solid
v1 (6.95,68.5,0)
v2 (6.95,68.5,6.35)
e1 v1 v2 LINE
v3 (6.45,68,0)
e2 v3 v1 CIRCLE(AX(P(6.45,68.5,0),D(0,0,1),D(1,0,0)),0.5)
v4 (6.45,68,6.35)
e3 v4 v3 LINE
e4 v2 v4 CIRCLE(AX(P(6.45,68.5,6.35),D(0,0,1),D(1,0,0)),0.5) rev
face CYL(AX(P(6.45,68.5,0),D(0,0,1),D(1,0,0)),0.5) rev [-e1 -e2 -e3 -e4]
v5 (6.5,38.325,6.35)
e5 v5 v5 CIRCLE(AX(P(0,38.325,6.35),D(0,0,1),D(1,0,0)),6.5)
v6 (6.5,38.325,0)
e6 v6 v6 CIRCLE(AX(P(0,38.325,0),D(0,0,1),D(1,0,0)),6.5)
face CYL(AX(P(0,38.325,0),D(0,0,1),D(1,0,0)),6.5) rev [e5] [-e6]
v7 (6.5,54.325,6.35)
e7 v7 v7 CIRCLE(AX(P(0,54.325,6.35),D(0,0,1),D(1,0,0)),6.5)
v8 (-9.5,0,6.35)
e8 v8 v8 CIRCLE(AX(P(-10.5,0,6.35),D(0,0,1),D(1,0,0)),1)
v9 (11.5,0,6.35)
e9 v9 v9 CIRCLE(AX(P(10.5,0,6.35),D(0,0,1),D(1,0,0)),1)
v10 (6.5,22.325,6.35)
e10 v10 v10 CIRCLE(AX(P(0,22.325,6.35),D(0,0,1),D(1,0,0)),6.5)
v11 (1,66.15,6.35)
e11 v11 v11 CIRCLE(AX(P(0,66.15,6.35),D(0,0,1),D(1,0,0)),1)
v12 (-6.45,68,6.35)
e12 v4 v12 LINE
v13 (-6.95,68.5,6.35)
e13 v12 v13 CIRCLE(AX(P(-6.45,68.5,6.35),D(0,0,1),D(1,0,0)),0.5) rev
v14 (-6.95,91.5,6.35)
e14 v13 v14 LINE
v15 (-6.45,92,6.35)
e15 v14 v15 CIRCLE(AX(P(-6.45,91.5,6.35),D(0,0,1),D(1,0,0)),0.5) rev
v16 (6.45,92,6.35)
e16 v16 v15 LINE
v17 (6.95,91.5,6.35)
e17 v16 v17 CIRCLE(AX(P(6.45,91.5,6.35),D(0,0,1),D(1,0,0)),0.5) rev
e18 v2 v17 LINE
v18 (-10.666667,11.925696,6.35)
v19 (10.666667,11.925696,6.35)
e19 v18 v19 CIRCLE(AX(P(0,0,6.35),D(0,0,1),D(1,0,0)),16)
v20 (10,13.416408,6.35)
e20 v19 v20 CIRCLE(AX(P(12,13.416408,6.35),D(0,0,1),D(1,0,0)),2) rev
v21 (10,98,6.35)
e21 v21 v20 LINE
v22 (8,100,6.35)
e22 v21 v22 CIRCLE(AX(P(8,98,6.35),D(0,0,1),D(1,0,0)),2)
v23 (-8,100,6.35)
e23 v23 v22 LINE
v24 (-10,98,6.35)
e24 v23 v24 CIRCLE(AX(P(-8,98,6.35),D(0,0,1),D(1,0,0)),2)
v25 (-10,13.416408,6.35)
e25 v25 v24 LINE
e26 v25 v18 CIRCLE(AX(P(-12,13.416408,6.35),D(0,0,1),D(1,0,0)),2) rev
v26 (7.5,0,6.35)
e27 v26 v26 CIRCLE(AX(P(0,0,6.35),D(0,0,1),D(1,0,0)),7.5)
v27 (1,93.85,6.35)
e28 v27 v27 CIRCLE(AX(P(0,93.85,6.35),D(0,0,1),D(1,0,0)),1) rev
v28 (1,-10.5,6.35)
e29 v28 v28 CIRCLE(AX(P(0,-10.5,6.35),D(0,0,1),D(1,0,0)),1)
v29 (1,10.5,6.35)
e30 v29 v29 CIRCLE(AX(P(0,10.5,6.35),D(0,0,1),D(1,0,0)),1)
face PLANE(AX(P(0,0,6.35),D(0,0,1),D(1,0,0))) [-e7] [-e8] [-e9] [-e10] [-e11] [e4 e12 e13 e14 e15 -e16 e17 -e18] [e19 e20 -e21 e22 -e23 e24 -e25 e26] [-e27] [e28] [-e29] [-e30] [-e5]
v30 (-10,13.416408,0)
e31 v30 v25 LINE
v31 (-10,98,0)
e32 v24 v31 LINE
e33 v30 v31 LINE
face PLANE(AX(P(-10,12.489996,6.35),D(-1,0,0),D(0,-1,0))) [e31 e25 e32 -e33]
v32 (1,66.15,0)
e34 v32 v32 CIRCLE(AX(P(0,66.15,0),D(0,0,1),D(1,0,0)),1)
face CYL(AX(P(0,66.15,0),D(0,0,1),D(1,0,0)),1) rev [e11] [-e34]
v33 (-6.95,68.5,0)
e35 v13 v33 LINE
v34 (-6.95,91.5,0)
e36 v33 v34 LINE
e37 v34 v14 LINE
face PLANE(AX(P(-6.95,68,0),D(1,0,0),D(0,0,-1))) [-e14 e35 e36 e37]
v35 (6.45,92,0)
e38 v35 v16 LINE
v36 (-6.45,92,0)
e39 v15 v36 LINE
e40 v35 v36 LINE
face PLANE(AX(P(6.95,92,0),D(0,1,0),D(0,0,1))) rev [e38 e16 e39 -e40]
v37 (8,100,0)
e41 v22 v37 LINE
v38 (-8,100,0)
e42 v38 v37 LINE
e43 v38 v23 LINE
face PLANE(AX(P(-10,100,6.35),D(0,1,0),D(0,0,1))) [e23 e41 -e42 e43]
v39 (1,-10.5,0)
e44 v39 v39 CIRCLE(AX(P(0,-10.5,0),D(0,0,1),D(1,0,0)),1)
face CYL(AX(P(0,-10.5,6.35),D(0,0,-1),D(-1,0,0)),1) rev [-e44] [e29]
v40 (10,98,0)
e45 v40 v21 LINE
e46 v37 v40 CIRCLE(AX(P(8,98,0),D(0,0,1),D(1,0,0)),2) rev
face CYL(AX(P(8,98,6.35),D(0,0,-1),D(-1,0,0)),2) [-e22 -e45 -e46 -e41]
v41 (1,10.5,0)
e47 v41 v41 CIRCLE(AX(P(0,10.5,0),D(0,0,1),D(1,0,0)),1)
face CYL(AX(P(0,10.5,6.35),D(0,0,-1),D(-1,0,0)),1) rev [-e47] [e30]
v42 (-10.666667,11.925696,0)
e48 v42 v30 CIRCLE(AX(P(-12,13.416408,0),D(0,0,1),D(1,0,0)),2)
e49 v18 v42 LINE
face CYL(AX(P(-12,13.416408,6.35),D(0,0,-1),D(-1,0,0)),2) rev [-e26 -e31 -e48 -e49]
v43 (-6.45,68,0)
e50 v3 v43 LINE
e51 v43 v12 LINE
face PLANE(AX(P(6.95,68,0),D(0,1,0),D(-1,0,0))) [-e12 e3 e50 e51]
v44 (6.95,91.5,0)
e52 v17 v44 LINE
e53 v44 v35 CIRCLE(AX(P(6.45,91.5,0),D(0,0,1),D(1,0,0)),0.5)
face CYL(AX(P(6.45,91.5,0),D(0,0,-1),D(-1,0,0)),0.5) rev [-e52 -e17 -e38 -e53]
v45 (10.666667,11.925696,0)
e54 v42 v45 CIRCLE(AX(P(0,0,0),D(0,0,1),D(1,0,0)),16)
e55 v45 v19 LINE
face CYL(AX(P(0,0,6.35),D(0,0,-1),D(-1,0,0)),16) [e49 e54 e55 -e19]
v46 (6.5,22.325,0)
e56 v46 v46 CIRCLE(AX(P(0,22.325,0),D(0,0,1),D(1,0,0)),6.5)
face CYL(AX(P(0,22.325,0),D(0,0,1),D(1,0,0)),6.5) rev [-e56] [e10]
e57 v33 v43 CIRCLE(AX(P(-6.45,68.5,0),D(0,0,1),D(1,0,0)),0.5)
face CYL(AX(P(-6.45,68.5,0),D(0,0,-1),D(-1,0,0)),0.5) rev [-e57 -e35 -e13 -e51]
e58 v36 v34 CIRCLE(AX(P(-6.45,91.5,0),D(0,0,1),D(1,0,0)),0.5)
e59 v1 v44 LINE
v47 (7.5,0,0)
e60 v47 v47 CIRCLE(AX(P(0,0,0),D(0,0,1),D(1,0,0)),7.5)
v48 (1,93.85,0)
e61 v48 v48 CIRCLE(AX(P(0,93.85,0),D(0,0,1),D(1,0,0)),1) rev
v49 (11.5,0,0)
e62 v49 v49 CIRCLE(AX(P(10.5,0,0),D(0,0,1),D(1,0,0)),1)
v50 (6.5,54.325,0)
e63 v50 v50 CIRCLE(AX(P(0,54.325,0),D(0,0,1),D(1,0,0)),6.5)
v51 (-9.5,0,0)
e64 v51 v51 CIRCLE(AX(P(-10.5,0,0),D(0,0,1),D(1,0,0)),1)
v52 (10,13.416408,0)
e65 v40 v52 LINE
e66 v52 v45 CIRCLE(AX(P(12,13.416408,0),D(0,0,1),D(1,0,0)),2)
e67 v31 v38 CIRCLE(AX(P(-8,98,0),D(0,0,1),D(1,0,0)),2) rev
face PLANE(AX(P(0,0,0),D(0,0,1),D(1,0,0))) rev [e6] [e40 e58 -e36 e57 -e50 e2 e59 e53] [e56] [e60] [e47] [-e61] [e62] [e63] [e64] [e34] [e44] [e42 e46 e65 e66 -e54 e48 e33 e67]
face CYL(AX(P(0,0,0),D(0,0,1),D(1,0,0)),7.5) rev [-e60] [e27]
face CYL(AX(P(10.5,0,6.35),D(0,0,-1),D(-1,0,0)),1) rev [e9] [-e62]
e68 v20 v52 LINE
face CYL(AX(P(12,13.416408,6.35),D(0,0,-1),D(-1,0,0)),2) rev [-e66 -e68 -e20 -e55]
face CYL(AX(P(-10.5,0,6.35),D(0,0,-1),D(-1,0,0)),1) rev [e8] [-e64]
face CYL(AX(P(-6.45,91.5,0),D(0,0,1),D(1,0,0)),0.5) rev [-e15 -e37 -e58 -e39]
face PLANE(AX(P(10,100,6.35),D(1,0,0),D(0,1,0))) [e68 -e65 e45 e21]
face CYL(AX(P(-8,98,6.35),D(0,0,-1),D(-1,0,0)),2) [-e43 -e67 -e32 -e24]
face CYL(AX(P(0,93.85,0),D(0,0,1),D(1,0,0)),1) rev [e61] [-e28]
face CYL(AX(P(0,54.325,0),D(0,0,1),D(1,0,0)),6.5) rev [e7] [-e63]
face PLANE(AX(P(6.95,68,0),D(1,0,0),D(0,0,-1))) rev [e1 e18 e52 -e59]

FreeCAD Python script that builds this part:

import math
import FreeCAD as App
import Part
import Sketcher
from FreeCAD import Vector


def edges_at(feature, points):
    """Names of the edges that pass closest to the given points."""
    edges = feature.Shape.Edges
    near = lambda p: min(range(len(edges)), key=lambda i: edges[i].distToShape(Part.Vertex(*p))[0])
    return sorted({f"Edge{near(p) + 1}" for p in points})

doc = App.newDocument("Part")
params = doc.addObject("Spreadsheet::Sheet", "Params")
for row, (alias, value) in enumerate([
    ("sketch1_diameter", "2 mm"),
    ("sketch1_radius", "16 mm"),
    ("sketch1_width", "20 mm"),
    ("pad1_length", "6.35 mm"),
    ("sketch2_diameter", "2 mm"),
    ("sketch2_height", "24 mm"),
    ("sketch2_width", "13.9 mm"),
    ("fillet_radius", "0.5 mm"),
    ("fillet2_radius", "2 mm"),
    ("sketch3_diameter", "13 mm"),
    ("pocket2_length", "6.35 mm"),
    ("sketch4_diameter", "15 mm"),
], start=1):
    params.set(f"A{row}", alias)
    params.set(f"B{row}", "=" + value)
    params.setAlias(f"B{row}", alias)

body = doc.addObject("PartDesign::Body", "Body")

sketch1 = doc.addObject("Sketcher::SketchObject", "Sketch")
body.addObject(sketch1)
sketch1.AttachmentSupport = (doc.XY_Plane, [""])
sketch1.MapMode = "FlatFace"
sketch1.addGeometry([
    Part.LineSegment(Vector(-10, 100, 0), Vector(-10, 12.5, 0)),
    Part.ArcOfCircle(Part.Circle(Vector(0, 0, 0), Vector(0, 0, 1), 16), math.radians(129), math.radians(411)),
    Part.LineSegment(Vector(10, 12.5, 0), Vector(10, 100, 0)),
    Part.LineSegment(Vector(10, 100, 0), Vector(-10, 100, 0)),
    Part.Circle(Vector(0, -10.5, 0), Vector(0, 0, 1), 1),
    Part.Circle(Vector(10.5, 0, 0), Vector(0, 0, 1), 1),
    Part.Circle(Vector(-10.5, 0, 0), Vector(0, 0, 1), 1),
    Part.Circle(Vector(0, 10.5, 0), Vector(0, 0, 1), 1),
], False)
sketch1.addConstraint([
    Sketcher.Constraint("Coincident", 0, 2, 1, 1),
    Sketcher.Constraint("Coincident", 1, 2, 2, 1),
    Sketcher.Constraint("Coincident", 2, 2, 3, 1),
    Sketcher.Constraint("Coincident", 3, 2, 0, 1),
    Sketcher.Constraint("Vertical", 0),
    Sketcher.Constraint("Vertical", 2),
    Sketcher.Constraint("Horizontal", 3),
    Sketcher.Constraint("Coincident", 1, 3, -1, 1),
    Sketcher.Constraint("Equal", 4, 5),
    Sketcher.Constraint("Equal", 5, 6),
    Sketcher.Constraint("Equal", 6, 7),
    Sketcher.Constraint("Symmetric", 5, 3, 6, 3, -1, 1),
    Sketcher.Constraint("Symmetric", 4, 3, 7, 3, -1, 1),
    Sketcher.Constraint("PointOnObject", 4, 3, -2),
    Sketcher.Constraint("PointOnObject", 5, 3, -1),
    Sketcher.Constraint("Horizontal", 0, 2, 1, 2),
    Sketcher.Constraint("Diameter", 4, 2.0),
    Sketcher.Constraint("Radius", 1, 16.0),
    Sketcher.Constraint("DistanceX", 3, 2, 3, 1, 20.0),
    Sketcher.Constraint("DistanceY", -1, 1, 2, 2, 100.0),
    Sketcher.Constraint("DistanceX", 6, 3, 5, 3, 21.0),
    Sketcher.Constraint("DistanceY", 4, 3, 7, 3, 21.0),
])
sketch1.setExpression("Constraints[16]", "Params.sketch1_diameter")
sketch1.setExpression("Constraints[17]", "Params.sketch1_radius")
sketch1.setExpression("Constraints[18]", "Params.sketch1_width")
pad1 = doc.addObject("PartDesign::Pad", "Pad")
body.addObject(pad1)
pad1.Profile = sketch1
pad1.setExpression("Length", "Params.pad1_length")

sketch2 = doc.addObject("Sketcher::SketchObject", "Sketch001")
body.addObject(sketch2)
sketch2.AttachmentSupport = (doc.XY_Plane, [""])
sketch2.MapMode = "FlatFace"
sketch2.AttachmentOffset = App.Placement(Vector(0, 0, 6.35), App.Rotation())
sketch2.addGeometry([
    Part.Circle(Vector(0, 93.8, 0), Vector(0, 0, 1), 1),
    Part.Circle(Vector(0, 66.2, 0), Vector(0, 0, 1), 1),
    Part.LineSegment(Vector(-7, 92, 0), Vector(-7, 68, 0)),
    Part.LineSegment(Vector(-7, 68, 0), Vector(7, 68, 0)),
    Part.LineSegment(Vector(7, 68, 0), Vector(7, 92, 0)),
    Part.LineSegment(Vector(7, 92, 0), Vector(-7, 92, 0)),
], False)
sketch2.addConstraint([
    Sketcher.Constraint("Coincident", 2, 2, 3, 1),
    Sketcher.Constraint("Coincident", 3, 2, 4, 1),
    Sketcher.Constraint("Coincident", 4, 2, 5, 1),
    Sketcher.Constraint("Coincident", 5, 2, 2, 1),
    Sketcher.Constraint("Vertical", 2),
    Sketcher.Constraint("Horizontal", 3),
    Sketcher.Constraint("Vertical", 4),
    Sketcher.Constraint("Horizontal", 5),
    Sketcher.Constraint("Equal", 0, 1),
    Sketcher.Constraint("PointOnObject", 0, 3, -2),
    Sketcher.Constraint("PointOnObject", 1, 3, -2),
    Sketcher.Constraint("Diameter", 0, 2.0),
    Sketcher.Constraint("DistanceY", 2, 2, 2, 1, 24.0),
    Sketcher.Constraint("DistanceX", 3, 1, 3, 2, 13.9),
    Sketcher.Constraint("DistanceY", -1, 1, 2, 2, 68.0),
    Sketcher.Constraint("DistanceY", 1, 3, 0, 3, 27.7),
    Sketcher.Constraint("DistanceY", -1, 1, 0, 3, 93.85),
    Sketcher.Constraint("DistanceX", 2, 2, -1, 1, 6.95),
])
sketch2.setExpression("Constraints[11]", "Params.sketch2_diameter")
sketch2.setExpression("Constraints[12]", "Params.sketch2_height")
sketch2.setExpression("Constraints[13]", "Params.sketch2_width")
pocket1 = doc.addObject("PartDesign::Pocket", "Pocket")
body.addObject(pocket1)
pocket1.Profile = sketch2
pocket1.Type = "ThroughAll"
doc.recompute()

fillet = doc.addObject("PartDesign::Fillet", "Fillet")
body.addObject(fillet)
fillet.Base = (pocket1, edges_at(pocket1, [
    (6.95, 68, 3.175),
    (-6.95, 68, 3.175),
    (-6.95, 92, 3.175),
    (6.95, 92, 3.175),
]))
fillet.setExpression("Radius", "Params.fillet_radius")
doc.recompute()

fillet2 = doc.addObject("PartDesign::Fillet", "Fillet001")
body.addObject(fillet2)
fillet2.Base = (fillet, edges_at(fillet, [
    (-10, 12.49, 3.175),
    (-10, 100, 3.175),
    (10, 100, 3.175),
    (10, 12.49, 3.175),
]))
fillet2.setExpression("Radius", "Params.fillet2_radius")

sketch3 = doc.addObject("Sketcher::SketchObject", "Sketch002")
body.addObject(sketch3)
sketch3.AttachmentSupport = (doc.XY_Plane, [""])
sketch3.MapMode = "FlatFace"
sketch3.AttachmentOffset = App.Placement(Vector(0, 0, 6.35), App.Rotation())
sketch3.addGeometry([
    Part.Circle(Vector(0, 38, 0), Vector(0, 0, 1), 6),
    Part.Circle(Vector(0, 54, 0), Vector(0, 0, 1), 6),
    Part.Circle(Vector(0, 22, 0), Vector(0, 0, 1), 6),
], False)
sketch3.addConstraint([
    Sketcher.Constraint("Equal", 0, 1),
    Sketcher.Constraint("Equal", 1, 2),
    Sketcher.Constraint("PointOnObject", 0, 3, -2),
    Sketcher.Constraint("PointOnObject", 1, 3, -2),
    Sketcher.Constraint("PointOnObject", 2, 3, -2),
    Sketcher.Constraint("Diameter", 0, 13.0),
    Sketcher.Constraint("DistanceY", 0, 3, 1, 3, 16.0),
    Sketcher.Constraint("DistanceY", 2, 3, 0, 3, 16.0),
    Sketcher.Constraint("DistanceY", -1, 1, 0, 3, 38.325),
])
sketch3.setExpression("Constraints[5]", "Params.sketch3_diameter")
pocket2 = doc.addObject("PartDesign::Pocket", "Pocket001")
body.addObject(pocket2)
pocket2.Profile = sketch3
pocket2.setExpression("Length", "Params.pocket2_length")

sketch4 = doc.addObject("Sketcher::SketchObject", "Sketch003")
body.addObject(sketch4)
sketch4.AttachmentSupport = (doc.XY_Plane, [""])
sketch4.MapMode = "FlatFace"
sketch4.AttachmentOffset = App.Placement(Vector(0, 0, 6.35), App.Rotation())
sketch4.addGeometry(Part.Circle(Vector(0, 0, 0), Vector(0, 0, 1), 8), False)
sketch4.addConstraint([
    Sketcher.Constraint("Coincident", 0, 3, -1, 1),
    Sketcher.Constraint("Diameter", 0, 15.0),
])
sketch4.setExpression("Constraints[1]", "Params.sketch4_diameter")
pocket3 = doc.addObject("PartDesign::Pocket", "Pocket002")
body.addObject(pocket3)
pocket3.Profile = sketch4
pocket3.Type = "ThroughAll"

doc.recompute()
